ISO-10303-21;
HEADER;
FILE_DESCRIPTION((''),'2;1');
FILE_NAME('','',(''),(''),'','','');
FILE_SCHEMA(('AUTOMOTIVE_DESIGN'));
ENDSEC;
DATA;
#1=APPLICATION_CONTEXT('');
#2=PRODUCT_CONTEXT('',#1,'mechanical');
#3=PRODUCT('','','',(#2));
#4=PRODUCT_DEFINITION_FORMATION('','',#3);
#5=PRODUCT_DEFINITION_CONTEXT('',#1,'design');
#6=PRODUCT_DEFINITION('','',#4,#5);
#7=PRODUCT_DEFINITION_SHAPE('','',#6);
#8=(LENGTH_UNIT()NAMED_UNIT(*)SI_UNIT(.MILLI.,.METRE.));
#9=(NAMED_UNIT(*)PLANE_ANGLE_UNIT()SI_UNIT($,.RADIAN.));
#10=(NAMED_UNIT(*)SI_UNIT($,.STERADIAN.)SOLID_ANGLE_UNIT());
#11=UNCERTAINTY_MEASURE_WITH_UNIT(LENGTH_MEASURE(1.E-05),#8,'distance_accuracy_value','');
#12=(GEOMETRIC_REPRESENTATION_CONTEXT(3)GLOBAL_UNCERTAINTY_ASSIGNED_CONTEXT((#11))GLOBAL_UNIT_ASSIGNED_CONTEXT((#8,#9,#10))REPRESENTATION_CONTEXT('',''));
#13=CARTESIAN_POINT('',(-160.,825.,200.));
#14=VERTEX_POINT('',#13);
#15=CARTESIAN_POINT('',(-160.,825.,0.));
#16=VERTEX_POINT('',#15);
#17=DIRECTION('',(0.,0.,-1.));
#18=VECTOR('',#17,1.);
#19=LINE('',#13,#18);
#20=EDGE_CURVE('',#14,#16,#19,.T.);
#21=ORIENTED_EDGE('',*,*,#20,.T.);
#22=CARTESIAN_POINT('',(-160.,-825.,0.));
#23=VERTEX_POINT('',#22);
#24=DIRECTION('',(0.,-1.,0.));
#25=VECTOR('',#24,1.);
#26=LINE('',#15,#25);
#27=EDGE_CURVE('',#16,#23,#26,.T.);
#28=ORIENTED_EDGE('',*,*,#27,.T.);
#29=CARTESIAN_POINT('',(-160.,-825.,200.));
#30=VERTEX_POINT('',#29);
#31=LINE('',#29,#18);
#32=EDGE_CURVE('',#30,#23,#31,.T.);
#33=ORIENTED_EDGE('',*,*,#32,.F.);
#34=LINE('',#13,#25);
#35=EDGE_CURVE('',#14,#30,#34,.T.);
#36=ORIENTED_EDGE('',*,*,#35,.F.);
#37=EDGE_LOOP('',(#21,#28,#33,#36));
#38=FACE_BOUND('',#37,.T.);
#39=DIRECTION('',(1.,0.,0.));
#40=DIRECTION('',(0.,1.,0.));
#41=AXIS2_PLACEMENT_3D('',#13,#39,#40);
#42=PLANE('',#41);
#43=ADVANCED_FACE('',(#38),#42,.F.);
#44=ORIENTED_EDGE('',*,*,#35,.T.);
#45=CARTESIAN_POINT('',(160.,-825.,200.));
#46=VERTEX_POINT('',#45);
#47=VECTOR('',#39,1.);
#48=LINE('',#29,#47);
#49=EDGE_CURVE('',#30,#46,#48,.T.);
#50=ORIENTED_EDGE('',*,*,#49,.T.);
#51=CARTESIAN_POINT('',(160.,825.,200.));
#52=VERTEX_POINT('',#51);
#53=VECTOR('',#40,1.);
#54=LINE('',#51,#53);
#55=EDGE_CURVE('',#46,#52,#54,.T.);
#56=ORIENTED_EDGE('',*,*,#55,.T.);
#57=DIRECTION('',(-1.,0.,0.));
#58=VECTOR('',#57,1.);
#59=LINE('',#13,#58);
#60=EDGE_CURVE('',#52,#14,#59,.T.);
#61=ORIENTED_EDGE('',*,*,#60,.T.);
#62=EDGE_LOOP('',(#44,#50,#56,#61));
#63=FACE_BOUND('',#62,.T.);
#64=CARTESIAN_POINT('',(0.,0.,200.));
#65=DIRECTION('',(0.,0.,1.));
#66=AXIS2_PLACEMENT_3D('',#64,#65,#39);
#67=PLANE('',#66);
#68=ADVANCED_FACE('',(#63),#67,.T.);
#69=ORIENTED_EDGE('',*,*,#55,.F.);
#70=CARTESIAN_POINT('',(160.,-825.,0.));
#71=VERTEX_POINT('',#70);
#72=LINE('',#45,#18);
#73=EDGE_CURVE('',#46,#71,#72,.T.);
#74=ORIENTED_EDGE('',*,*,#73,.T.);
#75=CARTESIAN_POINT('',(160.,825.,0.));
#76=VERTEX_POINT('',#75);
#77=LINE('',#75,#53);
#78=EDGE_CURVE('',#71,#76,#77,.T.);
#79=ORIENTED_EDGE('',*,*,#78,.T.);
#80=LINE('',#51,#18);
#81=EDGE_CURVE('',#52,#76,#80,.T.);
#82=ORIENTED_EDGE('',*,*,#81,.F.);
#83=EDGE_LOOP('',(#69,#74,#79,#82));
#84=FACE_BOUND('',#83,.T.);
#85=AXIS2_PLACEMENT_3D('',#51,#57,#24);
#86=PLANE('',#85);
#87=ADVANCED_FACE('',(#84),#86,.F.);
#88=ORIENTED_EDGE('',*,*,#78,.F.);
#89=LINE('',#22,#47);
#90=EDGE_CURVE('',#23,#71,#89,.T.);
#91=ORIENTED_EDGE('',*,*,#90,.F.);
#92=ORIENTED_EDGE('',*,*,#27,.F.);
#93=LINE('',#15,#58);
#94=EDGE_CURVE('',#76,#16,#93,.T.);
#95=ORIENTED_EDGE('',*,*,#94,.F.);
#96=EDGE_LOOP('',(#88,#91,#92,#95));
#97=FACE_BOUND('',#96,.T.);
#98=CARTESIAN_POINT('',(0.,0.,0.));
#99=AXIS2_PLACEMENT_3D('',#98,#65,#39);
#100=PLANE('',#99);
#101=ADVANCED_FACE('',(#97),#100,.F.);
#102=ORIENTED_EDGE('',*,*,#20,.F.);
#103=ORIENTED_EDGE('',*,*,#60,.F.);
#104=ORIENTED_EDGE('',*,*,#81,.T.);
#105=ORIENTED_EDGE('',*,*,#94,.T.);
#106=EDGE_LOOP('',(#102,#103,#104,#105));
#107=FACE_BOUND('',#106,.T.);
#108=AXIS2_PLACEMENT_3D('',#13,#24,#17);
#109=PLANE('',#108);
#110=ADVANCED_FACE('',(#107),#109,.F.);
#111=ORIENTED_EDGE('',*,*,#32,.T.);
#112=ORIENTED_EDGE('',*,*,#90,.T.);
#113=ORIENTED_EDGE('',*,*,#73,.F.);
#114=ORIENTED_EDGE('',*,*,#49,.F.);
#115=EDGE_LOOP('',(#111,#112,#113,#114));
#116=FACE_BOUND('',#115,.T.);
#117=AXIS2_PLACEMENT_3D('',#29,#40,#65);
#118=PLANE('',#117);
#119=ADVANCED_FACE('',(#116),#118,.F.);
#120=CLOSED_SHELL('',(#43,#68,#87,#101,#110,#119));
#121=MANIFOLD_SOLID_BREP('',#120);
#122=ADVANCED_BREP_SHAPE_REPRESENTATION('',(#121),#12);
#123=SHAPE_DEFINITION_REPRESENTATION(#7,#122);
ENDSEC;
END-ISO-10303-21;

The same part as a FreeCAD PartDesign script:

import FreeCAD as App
import Part
import Sketcher
Q = App.Units.Quantity

doc = App.newDocument("Part")
body = doc.addObject("PartDesign::Body", "Body")

# Sketch on XY plane
sketch1 = body.newObject("Sketcher::SketchObject", "Sketch")
sketch1.AttachmentSupport = (doc.getObject("XY_Plane"), [""])
sketch1.MapMode = "FlatFace"
sketch1.addGeometry(Part.LineSegment(App.Vector(-160, 825, 0), App.Vector(-160, -825, 0)), False)
sketch1.addGeometry(Part.LineSegment(App.Vector(-160, -825, 0), App.Vector(160, -825, 0)), False)
sketch1.addGeometry(Part.LineSegment(App.Vector(160, -825, 0), App.Vector(160, 825, 0)), False)
sketch1.addGeometry(Part.LineSegment(App.Vector(160, 825, 0), App.Vector(-160, 825, 0)), False)
sketch1.addConstraint(Sketcher.Constraint("Coincident", 0, 2, 1, 1))
sketch1.addConstraint(Sketcher.Constraint("Coincident", 1, 2, 2, 1))
sketch1.addConstraint(Sketcher.Constraint("Coincident", 2, 2, 3, 1))
sketch1.addConstraint(Sketcher.Constraint("Coincident", 3, 2, 0, 1))
sketch1.addConstraint(Sketcher.Constraint("Vertical", 0))
sketch1.addConstraint(Sketcher.Constraint("Horizontal", 1))
sketch1.addConstraint(Sketcher.Constraint("Vertical", 2))
sketch1.addConstraint(Sketcher.Constraint("Horizontal", 3))
sketch1.addConstraint(Sketcher.Constraint("Symmetric", 0, 2, 2, 2, -1, 1))
sketch1.addConstraint(Sketcher.Constraint("DistanceX", 1, 1, 1, 2, Q("320 mm")))
sketch1.addConstraint(Sketcher.Constraint("DistanceY", 0, 2, 0, 1, Q("1650 mm")))
pad1 = body.newObject("PartDesign::Pad", "Pad")
pad1.Profile = sketch1
pad1.Length = 200

doc.recompute()
